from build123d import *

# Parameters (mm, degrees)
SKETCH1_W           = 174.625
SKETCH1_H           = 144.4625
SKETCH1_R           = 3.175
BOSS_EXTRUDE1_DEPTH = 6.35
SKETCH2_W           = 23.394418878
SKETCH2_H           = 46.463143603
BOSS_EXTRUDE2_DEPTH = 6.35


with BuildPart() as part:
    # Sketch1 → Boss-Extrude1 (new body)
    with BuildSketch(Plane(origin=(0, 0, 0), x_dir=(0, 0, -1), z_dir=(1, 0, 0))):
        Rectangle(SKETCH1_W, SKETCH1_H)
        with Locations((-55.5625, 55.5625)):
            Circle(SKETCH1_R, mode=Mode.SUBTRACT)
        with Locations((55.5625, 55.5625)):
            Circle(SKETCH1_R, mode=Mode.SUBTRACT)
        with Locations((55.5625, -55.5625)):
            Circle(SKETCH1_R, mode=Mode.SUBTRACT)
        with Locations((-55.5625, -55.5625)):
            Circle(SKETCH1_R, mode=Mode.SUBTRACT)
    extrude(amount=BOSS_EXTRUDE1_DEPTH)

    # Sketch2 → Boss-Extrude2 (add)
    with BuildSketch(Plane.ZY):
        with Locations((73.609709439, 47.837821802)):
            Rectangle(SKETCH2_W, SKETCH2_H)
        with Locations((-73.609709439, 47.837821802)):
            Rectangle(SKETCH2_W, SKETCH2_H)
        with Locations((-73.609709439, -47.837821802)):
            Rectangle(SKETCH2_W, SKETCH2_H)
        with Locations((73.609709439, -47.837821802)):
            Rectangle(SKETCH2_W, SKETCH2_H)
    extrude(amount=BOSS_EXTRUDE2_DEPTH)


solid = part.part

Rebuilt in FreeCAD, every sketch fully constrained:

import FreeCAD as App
import Part
import Sketcher
from FreeCAD import Vector
Q = App.Units.Quantity


def add_polygon(sketch, points):
    """Adds a closed chain of lines whose ends are joined by coincident constraints."""
    first, n = sketch.GeometryCount, len(points)
    for a, b in zip(points, points[1:] + points[:1]):
        sketch.addGeometry(Part.LineSegment(App.Vector(*a, 0), App.Vector(*b, 0)), False)
    for i in range(n):
        sketch.addConstraint(Sketcher.Constraint("Coincident", first + i, 2, first + (i + 1) % n, 1))

doc = App.newDocument("Part")
params = doc.addObject("Spreadsheet::Sheet", "Params")
for row, (alias, value) in enumerate([
    ("sketch1_diameter", "0.25 in"),
    ("sketch1_width", "5.6875 in"),
    ("sketch1_height", "6.875 in"),
    ("pad1_length", "0.25 in"),
    ("pad2_length", "0.25 in"),
], start=1):
    params.set(f"A{row}", alias)
    params.set(f"B{row}", "=" + value)
    params.setAlias(f"B{row}", alias)

body = doc.addObject("PartDesign::Body", "Body")

# Sketch on YZ plane
sketch1 = body.newObject("Sketcher::SketchObject", "Sketch")
sketch1.AttachmentSupport = (doc.getObject("YZ_Plane"), [""])
sketch1.MapMode = "FlatFace"
add_polygon(sketch1, [(72.2, 87.3), (-72.2, 87.3), (-72.2, -87.3), (72.2, -87.3)])  # lines 0-3
sketch1.addGeometry(Part.Circle(Vector(-55.6, 55.6, 0), Vector(0, 0, 1), 3.2), False)  # 4
sketch1.addGeometry(Part.Circle(Vector(-55.6, -55.6, 0), Vector(0, 0, 1), 3.2), False)  # 5
sketch1.addGeometry(Part.Circle(Vector(55.6, 55.6, 0), Vector(0, 0, 1), 3.2), False)  # 6
sketch1.addGeometry(Part.Circle(Vector(55.6, -55.6, 0), Vector(0, 0, 1), 3.2), False)  # 7
sketch1.addConstraint([
    Sketcher.Constraint("Horizontal", 0),
    Sketcher.Constraint("Vertical", 1),
    Sketcher.Constraint("Horizontal", 2),
    Sketcher.Constraint("Vertical", 3),
    Sketcher.Constraint("Equal", 4, 5),
    Sketcher.Constraint("Equal", 5, 6),
    Sketcher.Constraint("Equal", 6, 7),
    Sketcher.Constraint("Symmetric", 5, 3, 6, 3, -1, 1),
    Sketcher.Constraint("Symmetric", 4, 3, 7, 3, -1, 1),
    Sketcher.Constraint("Symmetric", 0, 2, 2, 2, -1, 1),
    Sketcher.Constraint("Symmetric", 4, 3, 6, 3, -2),
    Sketcher.Constraint("Diameter", 4, Q("0.25 in")),
    Sketcher.Constraint("DistanceX", 0, 2, 0, 1, Q("5.6875 in")),
    Sketcher.Constraint("DistanceY", 1, 2, 1, 1, Q("6.875 in")),
    Sketcher.Constraint("DistanceY", 4, 3, 0, 2, Q("1.25 in")),
    Sketcher.Constraint("DistanceX", 4, 3, -1, 1, Q("2.1875 in")),
])
sketch1.setExpression("Constraints[15]", "Params.sketch1_diameter")
sketch1.setExpression("Constraints[16]", "Params.sketch1_width")
sketch1.setExpression("Constraints[17]", "Params.sketch1_height")
pad1 = body.newObject("PartDesign::Pad", "Pad")
pad1.Profile = sketch1
pad1.setExpression("Length", "Params.pad1_length")

# Sketch on YZ plane
sketch2 = body.newObject("Sketcher::SketchObject", "Sketch001")
sketch2.AttachmentSupport = (doc.getObject("YZ_Plane"), [""])
sketch2.MapMode = "FlatFace"
add_polygon(sketch2, [(71, 62), (25, 62), (25, 85), (71, 85)])  # lines 0-3
add_polygon(sketch2, [(71, -85), (25, -85), (25, -62), (71, -62)])  # lines 4-7
add_polygon(sketch2, [(-25, -85), (-71, -85), (-71, -62), (-25, -62)])  # lines 8-11
add_polygon(sketch2, [(-25, 62), (-71, 62), (-71, 85), (-25, 85)])  # lines 12-15
sketch2.addConstraint([
    Sketcher.Constraint("Horizontal", 0),
    Sketcher.Constraint("Vertical", 1),
    Sketcher.Constraint("Horizontal", 2),
    Sketcher.Constraint("Vertical", 3),
    Sketcher.Constraint("Horizontal", 4),
    Sketcher.Constraint("Vertical", 5),
    Sketcher.Constraint("Horizontal", 6),
    Sketcher.Constraint("Vertical", 7),
    Sketcher.Constraint("Horizontal", 8),
    Sketcher.Constraint("Vertical", 9),
    Sketcher.Constraint("Horizontal", 10),
    Sketcher.Constraint("Vertical", 11),
    Sketcher.Constraint("Horizontal", 12),
    Sketcher.Constraint("Vertical", 13),
    Sketcher.Constraint("Horizontal", 14),
    Sketcher.Constraint("Vertical", 15),
    Sketcher.Constraint("Symmetric", 2, 2, 8, 2, -1, 1),
    Sketcher.Constraint("Symmetric", 0, 2, 10, 2, -1, 1),
    Sketcher.Constraint("Symmetric", 6, 2, 12, 2, -1, 1),
    Sketcher.Constraint("Symmetric", 4, 2, 14, 2, -1, 1),
    Sketcher.Constraint("Symmetric", 7, 2, 8, 2, -2),
    Sketcher.Constraint("Symmetric", 5, 2, 10, 2, -2),
    Sketcher.Constraint("DistanceX", -1, 1, 0, 2, Q("0.96875 in")),
    Sketcher.Constraint("DistanceY", -1, 1, 0, 2, Q("2.4375 in")),
    Sketcher.Constraint("DistanceY", 1, 1, 1, 2, 23.394419),
    Sketcher.Constraint("DistanceX", 0, 2, 0, 1, 46.463144),
])
pad2 = body.newObject("PartDesign::Pad", "Pad001")
pad2.Profile = sketch2
pad2.setExpression("Length", "Params.pad2_length")
pad2.Reversed = True

doc.recompute()
